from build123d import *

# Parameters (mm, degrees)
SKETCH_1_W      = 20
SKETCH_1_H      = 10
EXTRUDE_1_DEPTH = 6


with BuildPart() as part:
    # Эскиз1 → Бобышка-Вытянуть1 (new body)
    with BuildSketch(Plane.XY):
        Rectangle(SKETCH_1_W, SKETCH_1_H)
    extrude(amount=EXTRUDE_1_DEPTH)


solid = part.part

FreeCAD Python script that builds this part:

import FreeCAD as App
import Part
import Sketcher
Q = App.Units.Quantity


def add_polygon(sketch, points):
    """Adds a closed chain of lines whose ends are joined by coincident constraints."""
    first, n = sketch.GeometryCount, len(points)
    for a, b in zip(points, points[1:] + points[:1]):
        sketch.addGeometry(Part.LineSegment(App.Vector(*a, 0), App.Vector(*b, 0)), False)
    for i in range(n):
        sketch.addConstraint(Sketcher.Constraint("Coincident", first + i, 2, first + (i + 1) % n, 1))

doc = App.newDocument("Part")
body = doc.addObject("PartDesign::Body", "Body")

# Sketch on XY plane
sketch1 = doc.addObject("Sketcher::SketchObject", "Sketch")
body.addObject(sketch1)
sketch1.AttachmentSupport = (doc.XY_Plane, [""])
sketch1.MapMode = "FlatFace"
add_polygon(sketch1, [(-10, 5), (-10, -5), (10, -5), (10, 5)])  # lines 0-3
sketch1.addConstraint(Sketcher.Constraint("Vertical", 0))
sketch1.addConstraint(Sketcher.Constraint("Horizontal", 1))
sketch1.addConstraint(Sketcher.Constraint("Vertical", 2))
sketch1.addConstraint(Sketcher.Constraint("Horizontal", 3))
sketch1.addConstraint(Sketcher.Constraint("Symmetric", 0, 2, 2, 2, -1, 1))
sketch1.addConstraint(Sketcher.Constraint("DistanceX", 1, 1, 1, 2, Q("20 mm")))
sketch1.addConstraint(Sketcher.Constraint("DistanceY", 0, 2, 0, 1, Q("10 mm")))
pad1 = doc.addObject("PartDesign::Pad", "Pad")
body.addObject(pad1)
pad1.Profile = sketch1
pad1.Length = 6

doc.recompute()
